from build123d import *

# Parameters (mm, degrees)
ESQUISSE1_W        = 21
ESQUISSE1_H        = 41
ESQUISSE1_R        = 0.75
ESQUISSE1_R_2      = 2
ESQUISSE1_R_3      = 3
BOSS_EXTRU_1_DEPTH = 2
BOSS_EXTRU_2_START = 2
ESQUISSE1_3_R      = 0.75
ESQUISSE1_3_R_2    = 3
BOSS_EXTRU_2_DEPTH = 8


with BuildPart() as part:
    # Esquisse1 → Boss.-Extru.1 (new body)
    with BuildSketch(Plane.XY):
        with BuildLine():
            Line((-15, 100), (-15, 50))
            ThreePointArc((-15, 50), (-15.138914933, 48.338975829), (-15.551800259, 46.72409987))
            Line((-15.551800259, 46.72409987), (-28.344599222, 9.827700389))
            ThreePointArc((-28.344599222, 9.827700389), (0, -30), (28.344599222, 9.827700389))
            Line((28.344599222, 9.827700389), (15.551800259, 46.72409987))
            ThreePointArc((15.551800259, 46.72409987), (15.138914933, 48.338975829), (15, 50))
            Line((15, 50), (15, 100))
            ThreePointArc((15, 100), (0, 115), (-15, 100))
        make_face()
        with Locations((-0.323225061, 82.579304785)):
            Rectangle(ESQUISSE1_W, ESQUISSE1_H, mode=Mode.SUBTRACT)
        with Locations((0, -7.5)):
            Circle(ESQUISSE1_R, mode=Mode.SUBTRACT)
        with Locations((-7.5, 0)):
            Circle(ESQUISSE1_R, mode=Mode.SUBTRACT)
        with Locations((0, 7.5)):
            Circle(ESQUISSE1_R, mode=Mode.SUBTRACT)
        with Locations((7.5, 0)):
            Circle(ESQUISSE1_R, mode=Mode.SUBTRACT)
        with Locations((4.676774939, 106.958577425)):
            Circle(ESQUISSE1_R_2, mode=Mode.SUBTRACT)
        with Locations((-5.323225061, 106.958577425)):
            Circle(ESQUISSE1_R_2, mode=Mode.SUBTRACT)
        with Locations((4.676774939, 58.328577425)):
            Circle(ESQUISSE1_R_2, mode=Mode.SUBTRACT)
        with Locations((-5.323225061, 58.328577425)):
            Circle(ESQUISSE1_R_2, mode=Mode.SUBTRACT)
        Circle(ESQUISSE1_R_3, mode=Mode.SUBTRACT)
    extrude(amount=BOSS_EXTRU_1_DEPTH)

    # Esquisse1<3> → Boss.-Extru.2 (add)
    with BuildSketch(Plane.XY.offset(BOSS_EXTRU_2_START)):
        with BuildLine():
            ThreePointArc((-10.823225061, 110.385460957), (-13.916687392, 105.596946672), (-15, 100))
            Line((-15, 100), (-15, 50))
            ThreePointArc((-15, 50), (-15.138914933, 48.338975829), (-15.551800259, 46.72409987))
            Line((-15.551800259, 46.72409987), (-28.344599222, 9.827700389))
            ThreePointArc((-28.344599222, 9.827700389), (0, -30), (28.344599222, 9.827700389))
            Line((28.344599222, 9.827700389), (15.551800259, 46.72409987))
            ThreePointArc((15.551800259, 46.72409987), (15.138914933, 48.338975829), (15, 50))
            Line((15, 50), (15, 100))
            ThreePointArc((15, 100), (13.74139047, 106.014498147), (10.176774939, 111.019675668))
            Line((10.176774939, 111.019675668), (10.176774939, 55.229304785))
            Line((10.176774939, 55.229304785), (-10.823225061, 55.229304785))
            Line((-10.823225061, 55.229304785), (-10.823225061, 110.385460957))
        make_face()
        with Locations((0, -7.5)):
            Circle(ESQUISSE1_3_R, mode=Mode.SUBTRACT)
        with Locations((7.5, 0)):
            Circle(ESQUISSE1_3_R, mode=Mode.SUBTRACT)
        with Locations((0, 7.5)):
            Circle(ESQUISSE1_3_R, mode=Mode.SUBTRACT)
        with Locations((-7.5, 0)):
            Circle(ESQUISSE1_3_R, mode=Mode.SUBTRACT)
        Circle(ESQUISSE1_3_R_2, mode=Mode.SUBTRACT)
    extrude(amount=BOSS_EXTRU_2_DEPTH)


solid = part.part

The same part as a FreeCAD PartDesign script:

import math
import FreeCAD as App
import Part
import Sketcher
Q = App.Units.Quantity


def add_polygon(sketch, points):
    """Adds a closed chain of lines whose ends are joined by coincident constraints."""
    first, n = sketch.GeometryCount, len(points)
    for a, b in zip(points, points[1:] + points[:1]):
        sketch.addGeometry(Part.LineSegment(App.Vector(*a, 0), App.Vector(*b, 0)), False)
    for i in range(n):
        sketch.addConstraint(Sketcher.Constraint("Coincident", first + i, 2, first + (i + 1) % n, 1))

doc = App.newDocument("Part")
body = doc.addObject("PartDesign::Body", "Body")

# Sketch on XY plane
sketch1 = doc.addObject("Sketcher::SketchObject", "Sketch")
body.addObject(sketch1)
sketch1.AttachmentSupport = (doc.XY_Plane, [""])
sketch1.MapMode = "FlatFace"
sketch1.addGeometry(Part.LineSegment(App.Vector(-15, 100, 0), App.Vector(-15, 50, 0)), False)  # 0
sketch1.addGeometry(Part.ArcOfCircle(Part.Circle(App.Vector(-25, 50, 0), App.Vector(0, 0, 1), 10), math.radians(-19.12), math.radians(0)), False)  # 1
sketch1.addGeometry(Part.LineSegment(App.Vector(-15.6, 46.7, 0), App.Vector(-28.3, 9.8, 0)), False)  # 2
sketch1.addGeometry(Part.ArcOfCircle(Part.Circle(App.Vector(0, 0, 0), App.Vector(0, 0, 1), 30), math.radians(161), math.radians(379)), False)  # 3
sketch1.addGeometry(Part.LineSegment(App.Vector(28.3, 9.8, 0), App.Vector(15.6, 46.7, 0)), False)  # 4
sketch1.addGeometry(Part.ArcOfCircle(Part.Circle(App.Vector(25, 50, 0), App.Vector(0, 0, 1), 10), math.radians(-180), math.radians(-160.88)), False)  # 5
sketch1.addGeometry(Part.LineSegment(App.Vector(15, 50, 0), App.Vector(15, 100, 0)), False)  # 6
sketch1.addGeometry(Part.ArcOfCircle(Part.Circle(App.Vector(0, 100, 0), App.Vector(0, 0, 1), 15), math.radians(0), math.radians(180)), False)  # 7
sketch1.addGeometry(Part.Circle(App.Vector(-7.5, 0, 0), App.Vector(0, 0, 1), 0.8), False)  # 8
sketch1.addGeometry(Part.Circle(App.Vector(0, -7.5, 0), App.Vector(0, 0, 1), 0.8), False)  # 9
sketch1.addGeometry(Part.Circle(App.Vector(0, 0, 0), App.Vector(0, 0, 1), 3), False)  # 10
sketch1.addGeometry(Part.Circle(App.Vector(0, 7.5, 0), App.Vector(0, 0, 1), 0.8), False)  # 11
sketch1.addGeometry(Part.Circle(App.Vector(7.5, 0, 0), App.Vector(0, 0, 1), 0.8), False)  # 12
sketch1.addGeometry(Part.Circle(App.Vector(-5.3, 58.3, 0), App.Vector(0, 0, 1), 2), False)  # 13
sketch1.addGeometry(Part.Circle(App.Vector(-5.3, 107, 0), App.Vector(0, 0, 1), 2), False)  # 14
sketch1.addGeometry(Part.Circle(App.Vector(4.7, 58.3, 0), App.Vector(0, 0, 1), 2), False)  # 15
add_polygon(sketch1, [(10.2, 62.1), (-10.8, 62.1), (-10.8, 103.1), (10.2, 103.1)])  # lines 16-19
sketch1.addGeometry(Part.Circle(App.Vector(4.7, 107, 0), App.Vector(0, 0, 1), 2), False)  # 20
sketch1.addConstraint(Sketcher.Constraint("Tangent", 0, 2, 1, 2))
sketch1.addConstraint(Sketcher.Constraint("Tangent", 1, 1, 2, 1))
sketch1.addConstraint(Sketcher.Constraint("Tangent", 2, 2, 3, 1))
sketch1.addConstraint(Sketcher.Constraint("Tangent", 3, 2, 4, 1))
sketch1.addConstraint(Sketcher.Constraint("Tangent", 4, 2, 5, 2))
sketch1.addConstraint(Sketcher.Constraint("Tangent", 5, 1, 6, 1))
sketch1.addConstraint(Sketcher.Constraint("Tangent", 6, 2, 7, 1))
sketch1.addConstraint(Sketcher.Constraint("Tangent", 7, 2, 0, 1))
sketch1.addConstraint(Sketcher.Constraint("Vertical", 0))
sketch1.addConstraint(Sketcher.Constraint("Vertical", 6))
sketch1.addConstraint(Sketcher.Constraint("Horizontal", 16))
sketch1.addConstraint(Sketcher.Constraint("Vertical", 17))
sketch1.addConstraint(Sketcher.Constraint("Horizontal", 18))
sketch1.addConstraint(Sketcher.Constraint("Vertical", 19))
sketch1.addConstraint(Sketcher.Constraint("Coincident", 3, 3, -1, 1))
sketch1.addConstraint(Sketcher.Constraint("Coincident", 10, 3, -1, 1))
sketch1.addConstraint(Sketcher.Constraint("Equal", 1, 5))
sketch1.addConstraint(Sketcher.Constraint("Equal", 8, 9))
sketch1.addConstraint(Sketcher.Constraint("Equal", 9, 11))
sketch1.addConstraint(Sketcher.Constraint("Equal", 11, 12))
sketch1.addConstraint(Sketcher.Constraint("Equal", 13, 14))
sketch1.addConstraint(Sketcher.Constraint("Equal", 14, 15))
sketch1.addConstraint(Sketcher.Constraint("Equal", 15, 20))
sketch1.addConstraint(Sketcher.Constraint("Symmetric", 9, 3, 11, 3, -1, 1))
sketch1.addConstraint(Sketcher.Constraint("Symmetric", 8, 3, 12, 3, -1, 1))
sketch1.addConstraint(Sketcher.Constraint("Symmetric", 1, 3, 5, 3, -2))
sketch1.addConstraint(Sketcher.Constraint("PointOnObject", 8, 3, -1))
sketch1.addConstraint(Sketcher.Constraint("PointOnObject", 9, 3, -2))
sketch1.addConstraint(Sketcher.Constraint("Horizontal", 13, 3, 15, 3))
sketch1.addConstraint(Sketcher.Constraint("Horizontal", 14, 3, 20, 3))
sketch1.addConstraint(Sketcher.Constraint("Vertical", 13, 3, 14, 3))
sketch1.addConstraint(Sketcher.Constraint("Vertical", 15, 3, 20, 3))
sketch1.addConstraint(Sketcher.Constraint("Diameter", 10, Q("6 mm")))
sketch1.addConstraint(Sketcher.Constraint("Diameter", 13, Q("4 mm")))
sketch1.addConstraint(Sketcher.Constraint("Radius", 1, Q("10 mm")))
sketch1.addConstraint(Sketcher.Constraint("Radius", 3, Q("30 mm")))
sketch1.addConstraint(Sketcher.Constraint("Radius", 7, Q("15 mm")))
sketch1.addConstraint(Sketcher.Constraint("Diameter", 8, Q("1.5 mm")))
sketch1.addConstraint(Sketcher.Constraint("DistanceX", 16, 2, 16, 1, Q("21 mm")))
sketch1.addConstraint(Sketcher.Constraint("DistanceY", 0, 2, 0, 1, Q("50 mm")))
sketch1.addConstraint(Sketcher.Constraint("DistanceY", 17, 1, 17, 2, Q("41 mm")))
sketch1.addConstraint(Sketcher.Constraint("DistanceY", -1, 1, 1, 3, Q("50 mm")))
sketch1.addConstraint(Sketcher.Constraint("DistanceY", 9, 3, 11, 3, Q("15 mm")))
sketch1.addConstraint(Sketcher.Constraint("DistanceX", 8, 3, 12, 3, Q("15 mm")))
sketch1.addConstraint(Sketcher.Constraint("DistanceX", 13, 3, 15, 3, Q("10 mm")))
sketch1.addConstraint(Sketcher.Constraint("DistanceX", 16, 2, 13, 3, Q("5.5 mm")))
sketch1.addConstraint(Sketcher.Constraint("DistanceY", 13, 3, 14, 3, Q("48.63 mm")))
sketch1.addConstraint(Sketcher.Constraint("DistanceX", 13, 3, -1, 1, Q("5.323225 mm")))
sketch1.addConstraint(Sketcher.Constraint("DistanceY", -1, 1, 13, 3, Q("58.328577 mm")))
sketch1.addConstraint(Sketcher.Constraint("DistanceY", -1, 1, 16, 2, Q("62.079305 mm")))
pad1 = doc.addObject("PartDesign::Pad", "Pad")
body.addObject(pad1)
pad1.Profile = sketch1
pad1.Length = 2

# Sketch on XY plane
sketch2 = doc.addObject("Sketcher::SketchObject", "Sketch001")
body.addObject(sketch2)
sketch2.AttachmentSupport = (doc.XY_Plane, [""])
sketch2.MapMode = "FlatFace"
sketch2.AttachmentOffset = App.Placement(App.Vector(0, 0, 2), App.Rotation())
sketch2.addGeometry(Part.ArcOfCircle(Part.Circle(App.Vector(0, 100, 0), App.Vector(0, 0, 1), 15), math.radians(136), math.radians(180)), False)
sketch2.addGeometry(Part.LineSegment(App.Vector(-15, 100, 0), App.Vector(-15, 50, 0)), False)
sketch2.addGeometry(Part.ArcOfCircle(Part.Circle(App.Vector(-25, 50, 0), App.Vector(0, 0, 1), 10), math.radians(-19.12), math.radians(0)), False)
sketch2.addGeometry(Part.LineSegment(App.Vector(-15.6, 46.7, 0), App.Vector(-28.3, 9.8, 0)), False)
sketch2.addGeometry(Part.ArcOfCircle(Part.Circle(App.Vector(0, 0, 0), App.Vector(0, 0, 1), 30), math.radians(161), math.radians(379)), False)
sketch2.addGeometry(Part.LineSegment(App.Vector(28.3, 9.8, 0), App.Vector(15.6, 46.7, 0)), False)
sketch2.addGeometry(Part.ArcOfCircle(Part.Circle(App.Vector(25, 50, 0), App.Vector(0, 0, 1), 10), math.radians(-180), math.radians(-160.88)), False)
sketch2.addGeometry(Part.LineSegment(App.Vector(15, 50, 0), App.Vector(15, 100, 0)), False)
sketch2.addGeometry(Part.ArcOfCircle(Part.Circle(App.Vector(0, 100, 0), App.Vector(0, 0, 1), 15), math.radians(0), math.radians(47)), False)
sketch2.addGeometry(Part.LineSegment(App.Vector(10.2, 111, 0), App.Vector(10.2, 55.2, 0)), False)
sketch2.addGeometry(Part.LineSegment(App.Vector(10.2, 55.2, 0), App.Vector(-10.8, 55.2, 0)), False)
sketch2.addGeometry(Part.LineSegment(App.Vector(-10.8, 55.2, 0), App.Vector(-10.8, 110.4, 0)), False)
sketch2.addGeometry(Part.Circle(App.Vector(0, -7.5, 0), App.Vector(0, 0, 1), 0.8), False)
sketch2.addGeometry(Part.Circle(App.Vector(-7.5, 0, 0), App.Vector(0, 0, 1), 0.8), False)
sketch2.addGeometry(Part.Circle(App.Vector(0, 0, 0), App.Vector(0, 0, 1), 3), False)
sketch2.addGeometry(Part.Circle(App.Vector(0, 7.5, 0), App.Vector(0, 0, 1), 0.8), False)
sketch2.addGeometry(Part.Circle(App.Vector(7.5, 0, 0), App.Vector(0, 0, 1), 0.8), False)
sketch2.addConstraint(Sketcher.Constraint("Tangent", 0, 2, 1, 1))
sketch2.addConstraint(Sketcher.Constraint("Tangent", 1, 2, 2, 2))
sketch2.addConstraint(Sketcher.Constraint("Tangent", 2, 1, 3, 1))
sketch2.addConstraint(Sketcher.Constraint("Tangent", 3, 2, 4, 1))
sketch2.addConstraint(Sketcher.Constraint("Tangent", 4, 2, 5, 1))
sketch2.addConstraint(Sketcher.Constraint("Tangent", 5, 2, 6, 2))
sketch2.addConstraint(Sketcher.Constraint("Tangent", 6, 1, 7, 1))
sketch2.addConstraint(Sketcher.Constraint("Tangent", 7, 2, 8, 1))
sketch2.addConstraint(Sketcher.Constraint("Coincident", 8, 2, 9, 1))
sketch2.addConstraint(Sketcher.Constraint("Coincident", 9, 2, 10, 1))
sketch2.addConstraint(Sketcher.Constraint("Coincident", 10, 2, 11, 1))
sketch2.addConstraint(Sketcher.Constraint("Coincident", 11, 2, 0, 1))
sketch2.addConstraint(Sketcher.Constraint("Vertical", 1))
sketch2.addConstraint(Sketcher.Constraint("Vertical", 7))
sketch2.addConstraint(Sketcher.Constraint("Vertical", 9))
sketch2.addConstraint(Sketcher.Constraint("Horizontal", 10))
sketch2.addConstraint(Sketcher.Constraint("Vertical", 11))
sketch2.addConstraint(Sketcher.Constraint("Coincident", 4, 3, -1, 1))
sketch2.addConstraint(Sketcher.Constraint("Coincident", 14, 3, -1, 1))
sketch2.addConstraint(Sketcher.Constraint("Coincident", 8, 3, 0, 3))
sketch2.addConstraint(Sketcher.Constraint("Equal", 2, 6))
sketch2.addConstraint(Sketcher.Constraint("Equal", 0, 8))
sketch2.addConstraint(Sketcher.Constraint("Equal", 12, 13))
sketch2.addConstraint(Sketcher.Constraint("Equal", 13, 15))
sketch2.addConstraint(Sketcher.Constraint("Equal", 15, 16))
sketch2.addConstraint(Sketcher.Constraint("Symmetric", 12, 3, 15, 3, -1, 1))
sketch2.addConstraint(Sketcher.Constraint("Symmetric", 13, 3, 16, 3, -1, 1))
sketch2.addConstraint(Sketcher.Constraint("Symmetric", 2, 3, 6, 3, -2))
sketch2.addConstraint(Sketcher.Constraint("PointOnObject", 12, 3, -2))
sketch2.addConstraint(Sketcher.Constraint("PointOnObject", 13, 3, -1))
sketch2.addConstraint(Sketcher.Constraint("Diameter", 14, Q("6 mm")))
sketch2.addConstraint(Sketcher.Constraint("Radius", 0, Q("15 mm")))
sketch2.addConstraint(Sketcher.Constraint("Radius", 2, Q("10 mm")))
sketch2.addConstraint(Sketcher.Constraint("Radius", 4, Q("30 mm")))
sketch2.addConstraint(Sketcher.Constraint("Diameter", 12, Q("1.5 mm")))
sketch2.addConstraint(Sketcher.Constraint("DistanceX", 10, 2, 10, 1, Q("21 mm")))
sketch2.addConstraint(Sketcher.Constraint("DistanceY", 1, 2, 1, 1, Q("50 mm")))
sketch2.addConstraint(Sketcher.Constraint("DistanceY", -1, 1, 0, 3, Q("100 mm")))
sketch2.addConstraint(Sketcher.Constraint("DistanceY", 12, 3, 15, 3, Q("15 mm")))
sketch2.addConstraint(Sketcher.Constraint("DistanceX", 13, 3, 16, 3, Q("15 mm")))
sketch2.addConstraint(Sketcher.Constraint("DistanceY", 9, 2, 9, 1, Q("55.790371 mm")))
sketch2.addConstraint(Sketcher.Constraint("DistanceY", 11, 1, 11, 2, Q("55.156156 mm")))
pad2 = doc.addObject("PartDesign::Pad", "Pad001")
body.addObject(pad2)
pad2.Profile = sketch2
pad2.Length = 8

doc.recompute()
